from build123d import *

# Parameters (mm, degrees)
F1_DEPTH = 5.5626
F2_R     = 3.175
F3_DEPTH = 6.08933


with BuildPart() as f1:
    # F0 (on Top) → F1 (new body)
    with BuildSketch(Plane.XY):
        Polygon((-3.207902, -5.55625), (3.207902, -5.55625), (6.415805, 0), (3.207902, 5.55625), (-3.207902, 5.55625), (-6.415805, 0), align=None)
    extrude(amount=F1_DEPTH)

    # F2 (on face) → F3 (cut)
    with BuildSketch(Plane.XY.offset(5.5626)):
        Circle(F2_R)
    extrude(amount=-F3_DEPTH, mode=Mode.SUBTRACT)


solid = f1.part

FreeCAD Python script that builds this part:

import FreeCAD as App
import Part
import Sketcher

V = App.Vector
Q = App.Units.Quantity


def add_polygon(sketch, points):
    """Adds a closed chain of lines whose ends are joined by coincident constraints."""
    first, n = sketch.GeometryCount, len(points)
    for a, b in zip(points, points[1:] + points[:1]):
        sketch.addGeometry(Part.LineSegment(App.Vector(*a, 0), App.Vector(*b, 0)), False)
    for i in range(n):
        sketch.addConstraint(Sketcher.Constraint("Coincident", first + i, 2, first + (i + 1) % n, 1))

doc = App.newDocument("Part")
body = doc.addObject("PartDesign::Body", "Body")

# Sketch on XY plane
sketch1 = body.newObject("Sketcher::SketchObject", "Sketch")
sketch1.AttachmentSupport = (doc.getObject("XY_Plane"), [""])
sketch1.MapMode = "FlatFace"
add_polygon(sketch1, [(-3, -6), (3, -6), (6, 0), (3, 6), (-3, 6), (-6, 0)])  # lines 0-5
sketch1.addConstraint([
    Sketcher.Constraint("Horizontal", 0),
    Sketcher.Constraint("Horizontal", 3),
    Sketcher.Constraint("Symmetric", 0, 2, 3, 2, -1, 1),
    Sketcher.Constraint("Symmetric", 1, 2, 4, 2, -1, 1),
    Sketcher.Constraint("PointOnObject", 1, 2, -1),
    Sketcher.Constraint("Parallel", 2, 5),
    Sketcher.Constraint("Vertical", 0, 2, 2, 2),
    Sketcher.Constraint("Angle", 1, Q("59.999996 deg")),
    Sketcher.Constraint("DistanceY", 0, 2, -1, 1, Q("0.21875 in")),
    Sketcher.Constraint("DistanceX", -1, 1, 0, 2, Q("3.207902 mm")),
])
pad1 = body.newObject("PartDesign::Pad", "Pad")
pad1.Profile = sketch1
pad1.Length = Q("0.219 in")

# Sketch on XY plane
sketch2 = body.newObject("Sketcher::SketchObject", "Sketch001")
sketch2.AttachmentSupport = (doc.getObject("XY_Plane"), [""])
sketch2.MapMode = "FlatFace"
sketch2.AttachmentOffset = App.Placement(V(0, 0, 0.219 * 25.4), App.Rotation())
sketch2.addGeometry(Part.Circle(V(0, 0, 0), V(0, 0, 1), 3.2), False)
sketch2.addConstraint([
    Sketcher.Constraint("Coincident", 0, 3, -1, 1),
    Sketcher.Constraint("Diameter", 0, Q("0.25 in")),
])
pocket1 = body.newObject("PartDesign::Pocket", "Pocket")
pocket1.Profile = sketch2
pocket1.Length = 6.08933

doc.recompute()
